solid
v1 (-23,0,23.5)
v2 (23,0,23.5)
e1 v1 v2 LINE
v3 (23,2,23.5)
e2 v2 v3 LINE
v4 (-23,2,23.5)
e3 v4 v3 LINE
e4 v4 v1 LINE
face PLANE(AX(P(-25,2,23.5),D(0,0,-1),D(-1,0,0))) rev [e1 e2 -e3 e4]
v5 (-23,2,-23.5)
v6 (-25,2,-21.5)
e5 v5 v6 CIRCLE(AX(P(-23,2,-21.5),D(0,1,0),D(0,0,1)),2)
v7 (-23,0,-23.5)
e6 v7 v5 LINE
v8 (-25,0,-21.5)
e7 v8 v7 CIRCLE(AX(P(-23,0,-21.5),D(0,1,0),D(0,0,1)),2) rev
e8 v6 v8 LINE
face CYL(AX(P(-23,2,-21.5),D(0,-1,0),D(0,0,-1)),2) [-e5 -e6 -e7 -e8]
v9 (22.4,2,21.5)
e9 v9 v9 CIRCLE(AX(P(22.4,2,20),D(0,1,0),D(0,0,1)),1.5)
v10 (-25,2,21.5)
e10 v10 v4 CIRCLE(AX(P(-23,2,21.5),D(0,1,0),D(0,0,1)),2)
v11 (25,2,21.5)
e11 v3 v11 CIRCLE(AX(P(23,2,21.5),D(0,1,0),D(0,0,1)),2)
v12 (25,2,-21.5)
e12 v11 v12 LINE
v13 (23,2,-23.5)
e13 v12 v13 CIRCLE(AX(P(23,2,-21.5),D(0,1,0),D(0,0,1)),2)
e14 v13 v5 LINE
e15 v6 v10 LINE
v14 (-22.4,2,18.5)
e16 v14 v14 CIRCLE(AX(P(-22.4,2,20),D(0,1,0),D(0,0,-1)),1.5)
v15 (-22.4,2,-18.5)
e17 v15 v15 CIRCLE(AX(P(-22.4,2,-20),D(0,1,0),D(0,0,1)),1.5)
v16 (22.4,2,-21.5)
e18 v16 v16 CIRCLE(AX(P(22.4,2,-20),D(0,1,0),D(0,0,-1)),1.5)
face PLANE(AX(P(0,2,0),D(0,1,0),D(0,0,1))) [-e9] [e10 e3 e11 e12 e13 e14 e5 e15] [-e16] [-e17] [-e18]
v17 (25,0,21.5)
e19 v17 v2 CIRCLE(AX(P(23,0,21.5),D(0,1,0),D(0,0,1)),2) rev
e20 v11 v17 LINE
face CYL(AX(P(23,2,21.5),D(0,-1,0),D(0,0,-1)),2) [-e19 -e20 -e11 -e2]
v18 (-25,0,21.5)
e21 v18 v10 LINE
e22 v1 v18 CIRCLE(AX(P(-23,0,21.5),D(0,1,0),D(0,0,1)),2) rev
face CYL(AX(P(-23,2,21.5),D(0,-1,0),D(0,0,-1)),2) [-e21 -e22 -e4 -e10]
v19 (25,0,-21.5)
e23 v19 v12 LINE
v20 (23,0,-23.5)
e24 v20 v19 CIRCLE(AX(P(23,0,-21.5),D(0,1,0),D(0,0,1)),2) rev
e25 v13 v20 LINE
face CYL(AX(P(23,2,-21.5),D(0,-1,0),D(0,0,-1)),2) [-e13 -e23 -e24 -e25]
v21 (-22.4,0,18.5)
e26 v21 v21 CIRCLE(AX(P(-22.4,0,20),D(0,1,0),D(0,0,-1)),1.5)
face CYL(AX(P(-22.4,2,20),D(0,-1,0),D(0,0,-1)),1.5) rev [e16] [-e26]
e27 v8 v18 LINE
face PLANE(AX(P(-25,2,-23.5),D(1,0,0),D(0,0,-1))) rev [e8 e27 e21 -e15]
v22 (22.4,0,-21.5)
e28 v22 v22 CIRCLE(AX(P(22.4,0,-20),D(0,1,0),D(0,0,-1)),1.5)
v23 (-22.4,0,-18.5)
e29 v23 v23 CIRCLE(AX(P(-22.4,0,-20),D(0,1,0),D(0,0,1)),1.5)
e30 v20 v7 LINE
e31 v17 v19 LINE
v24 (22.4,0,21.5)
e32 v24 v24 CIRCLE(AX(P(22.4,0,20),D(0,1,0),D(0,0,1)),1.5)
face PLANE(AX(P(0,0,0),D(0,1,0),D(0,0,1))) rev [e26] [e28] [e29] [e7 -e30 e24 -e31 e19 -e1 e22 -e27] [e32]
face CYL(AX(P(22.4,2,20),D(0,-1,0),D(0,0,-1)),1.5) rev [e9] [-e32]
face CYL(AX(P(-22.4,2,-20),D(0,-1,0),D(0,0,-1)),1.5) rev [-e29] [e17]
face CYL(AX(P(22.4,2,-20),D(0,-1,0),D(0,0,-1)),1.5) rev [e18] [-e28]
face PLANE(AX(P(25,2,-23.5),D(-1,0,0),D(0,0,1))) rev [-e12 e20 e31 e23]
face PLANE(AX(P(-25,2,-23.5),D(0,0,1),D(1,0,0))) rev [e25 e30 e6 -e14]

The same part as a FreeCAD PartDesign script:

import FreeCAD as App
import Part
import Sketcher


def edges_at(feature, points):
    """Names of the edges that pass closest to the given points."""
    edges = feature.Shape.Edges
    near = lambda p: min(range(len(edges)), key=lambda i: edges[i].distToShape(Part.Vertex(*p))[0])
    return sorted({f"Edge{near(p) + 1}" for p in points})

doc = App.newDocument("Part")
body = doc.addObject("PartDesign::Body", "Body")

# Sketch on XZ plane
sketch1 = body.newObject("Sketcher::SketchObject", "Sketch")
sketch1.AttachmentSupport = (doc.getObject("XZ_Plane"), [""])
sketch1.MapMode = "FlatFace"
sketch1.addGeometry(Part.LineSegment(App.Vector(-25, -23.5, 0), App.Vector(-25, 23.5, 0)), False)
sketch1.addGeometry(Part.LineSegment(App.Vector(-25, 23.5, 0), App.Vector(25, 23.5, 0)), False)
sketch1.addGeometry(Part.LineSegment(App.Vector(25, 23.5, 0), App.Vector(25, -23.5, 0)), False)
sketch1.addGeometry(Part.LineSegment(App.Vector(25, -23.5, 0), App.Vector(-25, -23.5, 0)), False)
sketch1.addGeometry(Part.Circle(App.Vector(-22.4, 20, 0), App.Vector(0, 0, 1), 1.5), False)
sketch1.addGeometry(Part.Circle(App.Vector(22.4, 20, 0), App.Vector(0, 0, 1), 1.5), False)
sketch1.addGeometry(Part.Circle(App.Vector(-22.4, -20, 0), App.Vector(0, 0, 1), 1.5), False)
sketch1.addGeometry(Part.Circle(App.Vector(22.4, -20, 0), App.Vector(0, 0, 1), 1.5), False)
sketch1.addConstraint(Sketcher.Constraint("Coincident", 0, 2, 1, 1))
sketch1.addConstraint(Sketcher.Constraint("Coincident", 1, 2, 2, 1))
sketch1.addConstraint(Sketcher.Constraint("Coincident", 2, 2, 3, 1))
sketch1.addConstraint(Sketcher.Constraint("Coincident", 3, 2, 0, 1))
sketch1.addConstraint(Sketcher.Constraint("Vertical", 0))
sketch1.addConstraint(Sketcher.Constraint("Horizontal", 1))
sketch1.addConstraint(Sketcher.Constraint("Vertical", 2))
sketch1.addConstraint(Sketcher.Constraint("Horizontal", 3))
sketch1.addConstraint(Sketcher.Constraint("Equal", 4, 5))
sketch1.addConstraint(Sketcher.Constraint("Equal", 5, 6))
sketch1.addConstraint(Sketcher.Constraint("Equal", 6, 7))
sketch1.addConstraint(Sketcher.Constraint("Symmetric", 5, 3, 6, 3, -1, 1))
sketch1.addConstraint(Sketcher.Constraint("Symmetric", 4, 3, 7, 3, -1, 1))
sketch1.addConstraint(Sketcher.Constraint("Symmetric", 0, 2, 2, 2, -1, 1))
sketch1.addConstraint(Sketcher.Constraint("Symmetric", 4, 3, 5, 3, -2))
sketch1.addConstraint(Sketcher.Constraint("Diameter", 4, 3.0))
sketch1.addConstraint(Sketcher.Constraint("DistanceX", 1, 1, 1, 2, 50.0))
sketch1.addConstraint(Sketcher.Constraint("DistanceY", 0, 1, 0, 2, 47.0))
sketch1.addConstraint(Sketcher.Constraint("DistanceY", -1, 1, 4, 3, 20.0))
sketch1.addConstraint(Sketcher.Constraint("DistanceX", 4, 3, -1, 1, 22.4))
pad1 = body.newObject("PartDesign::Pad", "Pad")
pad1.Profile = sketch1
pad1.Length = 2
pad1.Reversed = True
doc.recompute()

fillet = body.newObject("PartDesign::Fillet", "Fillet")
fillet.Base = (pad1, edges_at(pad1, [
    (25, 1, 23.5),
    (-25, 1, 23.5),
    (-25, 1, -23.5),
    (25, 1, -23.5),
]))
fillet.Radius = 2

doc.recompute()
